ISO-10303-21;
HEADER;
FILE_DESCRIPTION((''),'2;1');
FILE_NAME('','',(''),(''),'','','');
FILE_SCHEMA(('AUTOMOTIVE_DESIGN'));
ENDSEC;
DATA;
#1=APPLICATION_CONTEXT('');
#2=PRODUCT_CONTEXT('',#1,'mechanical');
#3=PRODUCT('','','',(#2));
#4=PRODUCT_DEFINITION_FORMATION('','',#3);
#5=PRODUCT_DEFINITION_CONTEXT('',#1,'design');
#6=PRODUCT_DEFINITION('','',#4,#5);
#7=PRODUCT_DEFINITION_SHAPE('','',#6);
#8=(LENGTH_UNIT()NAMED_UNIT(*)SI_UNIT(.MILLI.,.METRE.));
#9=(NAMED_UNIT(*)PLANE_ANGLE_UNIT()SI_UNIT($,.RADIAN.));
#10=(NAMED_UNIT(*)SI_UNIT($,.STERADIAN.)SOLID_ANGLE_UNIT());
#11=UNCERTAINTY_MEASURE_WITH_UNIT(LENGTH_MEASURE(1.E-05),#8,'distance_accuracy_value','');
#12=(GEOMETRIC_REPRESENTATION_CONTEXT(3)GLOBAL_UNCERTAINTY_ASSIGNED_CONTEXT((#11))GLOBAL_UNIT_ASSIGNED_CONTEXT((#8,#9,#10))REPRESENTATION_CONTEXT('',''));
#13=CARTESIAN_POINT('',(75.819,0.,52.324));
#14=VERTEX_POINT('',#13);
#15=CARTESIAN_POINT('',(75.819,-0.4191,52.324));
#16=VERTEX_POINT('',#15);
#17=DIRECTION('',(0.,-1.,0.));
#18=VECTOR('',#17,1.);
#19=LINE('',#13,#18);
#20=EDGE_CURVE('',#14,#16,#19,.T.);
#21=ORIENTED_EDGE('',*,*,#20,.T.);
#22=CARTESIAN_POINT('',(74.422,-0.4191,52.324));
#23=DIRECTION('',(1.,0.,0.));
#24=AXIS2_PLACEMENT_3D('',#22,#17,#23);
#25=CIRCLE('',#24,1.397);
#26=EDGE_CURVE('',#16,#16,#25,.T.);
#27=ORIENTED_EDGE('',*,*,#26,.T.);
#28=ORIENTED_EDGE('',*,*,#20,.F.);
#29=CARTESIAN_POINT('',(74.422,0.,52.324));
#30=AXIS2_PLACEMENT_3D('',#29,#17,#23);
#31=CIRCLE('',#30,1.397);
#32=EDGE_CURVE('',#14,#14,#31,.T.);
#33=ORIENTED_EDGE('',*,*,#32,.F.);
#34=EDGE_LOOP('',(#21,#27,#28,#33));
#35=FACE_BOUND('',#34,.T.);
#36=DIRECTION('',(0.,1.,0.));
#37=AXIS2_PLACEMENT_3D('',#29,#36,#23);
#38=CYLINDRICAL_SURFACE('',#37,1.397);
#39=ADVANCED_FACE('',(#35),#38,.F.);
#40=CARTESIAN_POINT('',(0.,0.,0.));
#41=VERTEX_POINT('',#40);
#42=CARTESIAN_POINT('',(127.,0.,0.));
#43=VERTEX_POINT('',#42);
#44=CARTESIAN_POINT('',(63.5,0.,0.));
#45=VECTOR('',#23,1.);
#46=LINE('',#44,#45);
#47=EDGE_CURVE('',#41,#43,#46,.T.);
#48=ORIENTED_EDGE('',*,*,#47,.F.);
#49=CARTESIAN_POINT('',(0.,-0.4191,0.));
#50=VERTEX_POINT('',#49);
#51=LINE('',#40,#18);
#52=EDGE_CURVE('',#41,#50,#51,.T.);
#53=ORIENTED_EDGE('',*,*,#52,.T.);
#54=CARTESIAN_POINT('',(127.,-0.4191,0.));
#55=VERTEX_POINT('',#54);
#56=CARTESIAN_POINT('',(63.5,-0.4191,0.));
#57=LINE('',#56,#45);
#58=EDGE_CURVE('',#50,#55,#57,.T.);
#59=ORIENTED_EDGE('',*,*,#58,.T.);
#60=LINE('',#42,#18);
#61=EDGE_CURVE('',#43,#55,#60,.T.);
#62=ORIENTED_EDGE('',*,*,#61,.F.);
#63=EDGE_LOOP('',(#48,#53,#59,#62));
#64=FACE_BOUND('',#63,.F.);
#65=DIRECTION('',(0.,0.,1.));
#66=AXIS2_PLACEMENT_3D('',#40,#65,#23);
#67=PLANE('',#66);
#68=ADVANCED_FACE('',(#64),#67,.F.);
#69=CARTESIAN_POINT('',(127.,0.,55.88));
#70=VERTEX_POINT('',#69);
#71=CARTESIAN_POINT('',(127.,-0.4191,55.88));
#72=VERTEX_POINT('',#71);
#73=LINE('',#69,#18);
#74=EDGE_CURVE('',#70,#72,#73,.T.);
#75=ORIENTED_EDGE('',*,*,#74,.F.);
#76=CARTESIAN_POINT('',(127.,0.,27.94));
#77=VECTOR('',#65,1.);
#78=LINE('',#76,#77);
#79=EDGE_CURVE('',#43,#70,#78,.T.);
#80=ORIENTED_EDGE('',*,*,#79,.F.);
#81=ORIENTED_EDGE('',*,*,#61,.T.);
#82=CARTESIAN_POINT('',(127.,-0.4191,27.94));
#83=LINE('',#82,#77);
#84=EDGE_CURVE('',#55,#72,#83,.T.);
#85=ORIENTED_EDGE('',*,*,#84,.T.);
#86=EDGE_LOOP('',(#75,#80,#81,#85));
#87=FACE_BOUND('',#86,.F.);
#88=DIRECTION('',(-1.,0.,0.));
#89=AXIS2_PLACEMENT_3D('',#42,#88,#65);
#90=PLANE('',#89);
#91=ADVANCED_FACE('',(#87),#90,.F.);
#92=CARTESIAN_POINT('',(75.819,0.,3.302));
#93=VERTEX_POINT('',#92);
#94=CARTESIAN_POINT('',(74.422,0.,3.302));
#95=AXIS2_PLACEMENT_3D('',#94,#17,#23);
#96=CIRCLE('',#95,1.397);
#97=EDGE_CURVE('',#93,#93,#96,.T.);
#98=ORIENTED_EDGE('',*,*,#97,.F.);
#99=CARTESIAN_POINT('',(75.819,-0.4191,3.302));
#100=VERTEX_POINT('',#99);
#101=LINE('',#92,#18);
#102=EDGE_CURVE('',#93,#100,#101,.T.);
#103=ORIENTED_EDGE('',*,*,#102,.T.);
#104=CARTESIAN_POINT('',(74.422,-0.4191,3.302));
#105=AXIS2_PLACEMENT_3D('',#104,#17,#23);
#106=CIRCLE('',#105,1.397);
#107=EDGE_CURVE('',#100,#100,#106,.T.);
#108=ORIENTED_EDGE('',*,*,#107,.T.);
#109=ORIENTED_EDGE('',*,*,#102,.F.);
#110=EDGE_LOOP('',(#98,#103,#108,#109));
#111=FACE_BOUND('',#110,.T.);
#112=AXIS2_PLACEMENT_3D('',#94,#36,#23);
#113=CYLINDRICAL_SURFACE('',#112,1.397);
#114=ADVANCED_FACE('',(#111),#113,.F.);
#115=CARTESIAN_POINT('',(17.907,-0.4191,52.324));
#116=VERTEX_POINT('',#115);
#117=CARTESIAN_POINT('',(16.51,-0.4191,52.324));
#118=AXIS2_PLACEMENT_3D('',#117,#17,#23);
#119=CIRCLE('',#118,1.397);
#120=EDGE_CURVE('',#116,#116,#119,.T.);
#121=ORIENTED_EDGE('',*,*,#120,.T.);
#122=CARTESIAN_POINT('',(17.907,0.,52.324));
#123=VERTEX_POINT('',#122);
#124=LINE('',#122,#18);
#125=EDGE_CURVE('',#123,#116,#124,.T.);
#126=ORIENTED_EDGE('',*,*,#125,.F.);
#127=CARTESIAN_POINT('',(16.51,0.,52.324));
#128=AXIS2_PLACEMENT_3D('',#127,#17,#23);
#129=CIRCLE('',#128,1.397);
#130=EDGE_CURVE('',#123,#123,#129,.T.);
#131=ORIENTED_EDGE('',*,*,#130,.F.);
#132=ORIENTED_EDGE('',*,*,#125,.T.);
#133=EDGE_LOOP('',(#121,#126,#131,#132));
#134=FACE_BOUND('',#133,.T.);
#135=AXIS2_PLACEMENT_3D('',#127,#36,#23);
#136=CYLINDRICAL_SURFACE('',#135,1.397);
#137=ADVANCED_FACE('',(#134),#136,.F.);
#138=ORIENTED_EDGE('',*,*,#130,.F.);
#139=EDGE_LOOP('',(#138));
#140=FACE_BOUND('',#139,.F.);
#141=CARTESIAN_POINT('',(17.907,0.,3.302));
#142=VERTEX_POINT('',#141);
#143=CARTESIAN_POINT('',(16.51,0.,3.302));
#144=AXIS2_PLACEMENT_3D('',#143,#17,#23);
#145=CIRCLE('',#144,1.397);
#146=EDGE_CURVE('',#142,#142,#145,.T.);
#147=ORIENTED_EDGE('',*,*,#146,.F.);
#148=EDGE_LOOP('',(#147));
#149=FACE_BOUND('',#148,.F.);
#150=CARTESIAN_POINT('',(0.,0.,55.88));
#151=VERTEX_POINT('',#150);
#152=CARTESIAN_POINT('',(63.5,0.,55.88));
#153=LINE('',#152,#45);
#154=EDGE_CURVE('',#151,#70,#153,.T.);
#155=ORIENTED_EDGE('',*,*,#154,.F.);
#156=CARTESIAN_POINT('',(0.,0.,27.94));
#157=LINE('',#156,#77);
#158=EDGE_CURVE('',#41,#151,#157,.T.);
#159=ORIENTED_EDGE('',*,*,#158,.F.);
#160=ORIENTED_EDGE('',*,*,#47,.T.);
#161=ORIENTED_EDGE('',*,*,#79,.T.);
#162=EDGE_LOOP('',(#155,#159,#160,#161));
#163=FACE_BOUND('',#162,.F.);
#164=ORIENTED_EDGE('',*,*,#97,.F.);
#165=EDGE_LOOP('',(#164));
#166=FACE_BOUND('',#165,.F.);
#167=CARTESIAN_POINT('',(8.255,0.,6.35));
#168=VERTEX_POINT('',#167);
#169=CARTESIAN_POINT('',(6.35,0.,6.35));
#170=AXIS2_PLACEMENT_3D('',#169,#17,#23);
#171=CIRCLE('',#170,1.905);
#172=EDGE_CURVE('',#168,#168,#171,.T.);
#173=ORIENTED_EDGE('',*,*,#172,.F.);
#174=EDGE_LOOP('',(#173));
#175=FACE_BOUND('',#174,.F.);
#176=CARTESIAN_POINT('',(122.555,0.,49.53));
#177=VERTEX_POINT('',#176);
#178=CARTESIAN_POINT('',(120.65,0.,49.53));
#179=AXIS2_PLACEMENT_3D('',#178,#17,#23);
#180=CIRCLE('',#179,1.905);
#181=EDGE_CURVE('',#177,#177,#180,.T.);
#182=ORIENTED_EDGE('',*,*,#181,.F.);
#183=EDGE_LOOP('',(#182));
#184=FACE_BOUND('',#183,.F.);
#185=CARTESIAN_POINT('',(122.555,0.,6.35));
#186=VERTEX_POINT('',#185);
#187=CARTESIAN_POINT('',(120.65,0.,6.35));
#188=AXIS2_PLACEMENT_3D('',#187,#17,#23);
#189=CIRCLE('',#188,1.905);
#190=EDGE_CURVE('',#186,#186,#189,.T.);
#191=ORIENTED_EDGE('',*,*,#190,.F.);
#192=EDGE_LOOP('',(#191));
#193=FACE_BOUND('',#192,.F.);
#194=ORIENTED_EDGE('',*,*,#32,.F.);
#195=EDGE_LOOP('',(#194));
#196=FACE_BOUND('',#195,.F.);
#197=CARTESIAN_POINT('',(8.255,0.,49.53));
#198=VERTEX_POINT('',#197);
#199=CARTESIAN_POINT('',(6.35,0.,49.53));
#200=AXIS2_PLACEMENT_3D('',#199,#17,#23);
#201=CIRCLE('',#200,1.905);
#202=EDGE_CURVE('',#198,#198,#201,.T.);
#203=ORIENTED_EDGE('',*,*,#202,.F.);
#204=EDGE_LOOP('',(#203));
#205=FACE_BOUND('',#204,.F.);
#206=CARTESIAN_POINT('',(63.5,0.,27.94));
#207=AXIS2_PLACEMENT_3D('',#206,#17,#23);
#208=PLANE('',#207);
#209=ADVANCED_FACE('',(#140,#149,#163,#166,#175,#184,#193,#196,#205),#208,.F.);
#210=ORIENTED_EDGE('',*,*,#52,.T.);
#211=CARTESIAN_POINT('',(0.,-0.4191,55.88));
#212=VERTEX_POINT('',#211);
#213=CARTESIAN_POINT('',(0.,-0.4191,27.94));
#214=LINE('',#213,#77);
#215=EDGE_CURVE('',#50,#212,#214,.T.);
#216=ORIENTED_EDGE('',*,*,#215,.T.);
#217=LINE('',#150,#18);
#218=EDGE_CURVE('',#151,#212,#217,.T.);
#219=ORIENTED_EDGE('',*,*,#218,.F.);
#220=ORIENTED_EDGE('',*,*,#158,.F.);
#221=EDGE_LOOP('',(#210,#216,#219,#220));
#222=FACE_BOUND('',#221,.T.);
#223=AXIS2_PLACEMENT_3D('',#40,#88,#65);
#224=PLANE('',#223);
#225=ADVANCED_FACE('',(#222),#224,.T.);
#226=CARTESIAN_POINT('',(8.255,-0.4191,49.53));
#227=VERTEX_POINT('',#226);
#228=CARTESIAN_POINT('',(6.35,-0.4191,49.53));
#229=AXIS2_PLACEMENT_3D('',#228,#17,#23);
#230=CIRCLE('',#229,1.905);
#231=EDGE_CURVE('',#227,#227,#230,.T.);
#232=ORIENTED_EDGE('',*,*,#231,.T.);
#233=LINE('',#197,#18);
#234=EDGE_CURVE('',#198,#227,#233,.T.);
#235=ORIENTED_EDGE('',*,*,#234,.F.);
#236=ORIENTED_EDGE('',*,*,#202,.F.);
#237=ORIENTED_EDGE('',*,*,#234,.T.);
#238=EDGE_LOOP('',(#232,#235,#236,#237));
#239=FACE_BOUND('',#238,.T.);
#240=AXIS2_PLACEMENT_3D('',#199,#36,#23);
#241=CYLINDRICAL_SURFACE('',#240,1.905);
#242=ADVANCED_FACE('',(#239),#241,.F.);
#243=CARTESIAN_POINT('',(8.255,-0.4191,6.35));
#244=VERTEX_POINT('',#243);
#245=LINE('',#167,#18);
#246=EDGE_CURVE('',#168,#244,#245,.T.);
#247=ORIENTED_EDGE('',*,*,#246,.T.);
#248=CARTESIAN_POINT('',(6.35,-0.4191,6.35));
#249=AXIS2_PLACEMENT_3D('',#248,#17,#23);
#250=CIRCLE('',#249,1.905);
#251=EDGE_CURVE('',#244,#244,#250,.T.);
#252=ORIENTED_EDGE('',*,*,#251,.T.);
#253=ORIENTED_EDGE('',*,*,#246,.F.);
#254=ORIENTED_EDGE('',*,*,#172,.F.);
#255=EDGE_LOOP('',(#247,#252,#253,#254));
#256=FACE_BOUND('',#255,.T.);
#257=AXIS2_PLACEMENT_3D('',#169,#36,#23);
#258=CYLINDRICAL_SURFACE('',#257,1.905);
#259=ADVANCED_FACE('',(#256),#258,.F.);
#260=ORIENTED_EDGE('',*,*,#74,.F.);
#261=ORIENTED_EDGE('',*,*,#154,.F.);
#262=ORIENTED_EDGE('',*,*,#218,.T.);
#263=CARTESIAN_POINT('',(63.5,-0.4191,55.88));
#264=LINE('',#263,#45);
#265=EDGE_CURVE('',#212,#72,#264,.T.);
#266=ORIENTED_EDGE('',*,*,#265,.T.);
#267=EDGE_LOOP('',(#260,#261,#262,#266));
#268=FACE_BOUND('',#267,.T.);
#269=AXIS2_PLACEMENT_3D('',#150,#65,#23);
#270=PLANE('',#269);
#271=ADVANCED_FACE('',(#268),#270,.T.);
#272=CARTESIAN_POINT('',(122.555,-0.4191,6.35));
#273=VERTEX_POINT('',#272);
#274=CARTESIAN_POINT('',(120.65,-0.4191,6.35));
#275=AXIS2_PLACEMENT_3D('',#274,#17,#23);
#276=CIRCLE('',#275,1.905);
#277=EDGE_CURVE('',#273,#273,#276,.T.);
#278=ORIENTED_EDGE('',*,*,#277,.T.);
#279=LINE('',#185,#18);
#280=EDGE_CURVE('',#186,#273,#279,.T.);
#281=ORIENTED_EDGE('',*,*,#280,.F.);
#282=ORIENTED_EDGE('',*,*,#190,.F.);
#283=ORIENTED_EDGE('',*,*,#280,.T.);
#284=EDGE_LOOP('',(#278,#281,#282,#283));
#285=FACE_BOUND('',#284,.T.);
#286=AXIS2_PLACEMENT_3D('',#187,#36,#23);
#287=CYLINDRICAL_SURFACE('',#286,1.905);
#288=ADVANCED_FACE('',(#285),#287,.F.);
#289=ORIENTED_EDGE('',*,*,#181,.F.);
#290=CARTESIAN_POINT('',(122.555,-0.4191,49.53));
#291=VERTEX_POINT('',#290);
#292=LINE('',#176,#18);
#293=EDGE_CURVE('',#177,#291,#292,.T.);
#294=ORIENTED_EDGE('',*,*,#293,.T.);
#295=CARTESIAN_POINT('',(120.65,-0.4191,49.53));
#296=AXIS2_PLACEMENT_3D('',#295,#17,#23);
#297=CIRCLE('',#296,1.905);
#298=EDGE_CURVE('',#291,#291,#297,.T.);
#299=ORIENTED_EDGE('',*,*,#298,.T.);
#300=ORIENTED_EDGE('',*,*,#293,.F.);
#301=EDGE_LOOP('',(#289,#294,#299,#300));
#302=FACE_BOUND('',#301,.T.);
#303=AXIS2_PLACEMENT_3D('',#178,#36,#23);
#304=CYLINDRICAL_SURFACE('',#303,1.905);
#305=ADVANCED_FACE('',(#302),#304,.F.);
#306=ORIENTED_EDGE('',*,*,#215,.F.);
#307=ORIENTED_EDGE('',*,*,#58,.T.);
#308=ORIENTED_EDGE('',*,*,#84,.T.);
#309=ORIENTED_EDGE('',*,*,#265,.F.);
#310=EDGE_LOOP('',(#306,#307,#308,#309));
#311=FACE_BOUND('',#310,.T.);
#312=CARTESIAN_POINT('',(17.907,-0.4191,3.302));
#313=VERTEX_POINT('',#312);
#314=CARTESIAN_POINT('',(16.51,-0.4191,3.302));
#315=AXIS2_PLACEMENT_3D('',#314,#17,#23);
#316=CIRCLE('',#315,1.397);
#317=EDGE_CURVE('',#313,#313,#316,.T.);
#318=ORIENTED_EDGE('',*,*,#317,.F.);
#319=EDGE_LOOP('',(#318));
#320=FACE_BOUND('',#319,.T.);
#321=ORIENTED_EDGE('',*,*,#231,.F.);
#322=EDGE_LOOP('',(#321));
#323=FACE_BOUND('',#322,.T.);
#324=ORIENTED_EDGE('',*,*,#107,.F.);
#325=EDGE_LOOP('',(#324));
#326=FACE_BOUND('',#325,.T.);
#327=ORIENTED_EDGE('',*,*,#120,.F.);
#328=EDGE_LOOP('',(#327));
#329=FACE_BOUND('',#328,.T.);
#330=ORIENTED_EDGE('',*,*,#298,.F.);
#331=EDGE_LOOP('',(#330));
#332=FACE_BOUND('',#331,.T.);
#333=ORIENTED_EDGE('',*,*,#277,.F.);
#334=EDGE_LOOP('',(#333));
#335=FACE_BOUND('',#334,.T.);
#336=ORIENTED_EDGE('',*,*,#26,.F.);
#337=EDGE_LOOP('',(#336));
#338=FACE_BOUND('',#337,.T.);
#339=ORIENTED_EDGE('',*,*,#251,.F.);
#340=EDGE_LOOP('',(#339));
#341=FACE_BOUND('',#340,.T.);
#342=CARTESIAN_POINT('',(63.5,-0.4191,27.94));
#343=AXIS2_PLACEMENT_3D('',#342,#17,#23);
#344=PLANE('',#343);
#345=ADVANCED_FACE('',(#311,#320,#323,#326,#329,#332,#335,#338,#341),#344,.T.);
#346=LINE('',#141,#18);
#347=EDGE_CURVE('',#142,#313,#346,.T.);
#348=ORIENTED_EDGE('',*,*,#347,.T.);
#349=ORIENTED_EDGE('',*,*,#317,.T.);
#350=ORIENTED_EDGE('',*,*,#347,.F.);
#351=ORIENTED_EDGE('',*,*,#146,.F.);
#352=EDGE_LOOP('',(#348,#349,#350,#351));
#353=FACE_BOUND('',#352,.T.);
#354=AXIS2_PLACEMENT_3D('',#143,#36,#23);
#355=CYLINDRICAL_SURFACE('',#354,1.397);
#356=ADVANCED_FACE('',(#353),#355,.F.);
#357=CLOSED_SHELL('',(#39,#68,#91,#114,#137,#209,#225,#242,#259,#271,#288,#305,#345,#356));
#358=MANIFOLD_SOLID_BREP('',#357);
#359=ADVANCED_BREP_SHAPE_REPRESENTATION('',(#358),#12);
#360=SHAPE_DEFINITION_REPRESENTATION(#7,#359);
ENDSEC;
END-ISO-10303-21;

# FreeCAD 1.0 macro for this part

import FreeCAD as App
import Part
import Sketcher
from FreeCAD import Vector
Q = App.Units.Quantity

doc = App.newDocument("Part")
params = doc.addObject("Spreadsheet::Sheet", "Params")
for row, (alias, value) in enumerate([
    ("sketch1_diameter", "0.11 in"),
    ("sketch1_diameter2", "0.15 in"),
    ("sketch1_width", "5 in"),
    ("sketch1_height", "2.2 in"),
    ("pad1_length", "0.0165 in"),
], start=1):
    params.set(f"A{row}", alias)
    params.set(f"B{row}", "=" + value)
    params.setAlias(f"B{row}", alias)

body = doc.addObject("PartDesign::Body", "Body")

sketch1 = body.newObject("Sketcher::SketchObject", "Sketch")
sketch1.AttachmentSupport = (doc.getObject("XZ_Plane"), [""])
sketch1.MapMode = "FlatFace"
sketch1.addGeometry([
    Part.LineSegment(Vector(0, 55.9, 0), Vector(0, 0, 0)),
    Part.LineSegment(Vector(0, 0, 0), Vector(127, 0, 0)),
    Part.LineSegment(Vector(127, 0, 0), Vector(127, 55.9, 0)),
    Part.LineSegment(Vector(127, 55.9, 0), Vector(0, 55.9, 0)),
    Part.Circle(Vector(16.5, 3.3, 0), Vector(0, 0, 1), 1.4),
    Part.Circle(Vector(6.3, 6.3, 0), Vector(0, 0, 1), 1.9),
    Part.Circle(Vector(74.4, 3.3, 0), Vector(0, 0, 1), 1.4),
    Part.Circle(Vector(120.7, 6.3, 0), Vector(0, 0, 1), 1.9),
    Part.Circle(Vector(6.3, 49.5, 0), Vector(0, 0, 1), 1.9),
    Part.Circle(Vector(16.5, 52.3, 0), Vector(0, 0, 1), 1.4),
    Part.Circle(Vector(74.4, 52.3, 0), Vector(0, 0, 1), 1.4),
    Part.Circle(Vector(120.7, 49.5, 0), Vector(0, 0, 1), 1.9),
], False)
sketch1.addConstraint([
    Sketcher.Constraint("Coincident", 0, 2, 1, 1),
    Sketcher.Constraint("Coincident", 1, 2, 2, 1),
    Sketcher.Constraint("Coincident", 2, 2, 3, 1),
    Sketcher.Constraint("Coincident", 3, 2, 0, 1),
    Sketcher.Constraint("Vertical", 0),
    Sketcher.Constraint("Horizontal", 1),
    Sketcher.Constraint("Vertical", 2),
    Sketcher.Constraint("Horizontal", 3),
    Sketcher.Constraint("Coincident", 0, 2, -1, 1),
    Sketcher.Constraint("Equal", 4, 6),
    Sketcher.Constraint("Equal", 5, 7),
    Sketcher.Constraint("Equal", 7, 8),
    Sketcher.Constraint("Equal", 6, 9),
    Sketcher.Constraint("Equal", 9, 10),
    Sketcher.Constraint("Equal", 8, 11),
    Sketcher.Constraint("Horizontal", 4, 3, 6, 3),
    Sketcher.Constraint("Horizontal", 5, 3, 7, 3),
    Sketcher.Constraint("Horizontal", 9, 3, 10, 3),
    Sketcher.Constraint("Horizontal", 8, 3, 11, 3),
    Sketcher.Constraint("Vertical", 5, 3, 8, 3),
    Sketcher.Constraint("Vertical", 4, 3, 9, 3),
    Sketcher.Constraint("Vertical", 6, 3, 10, 3),
    Sketcher.Constraint("Vertical", 7, 3, 11, 3),
    Sketcher.Constraint("Diameter", 4, Q("0.11 in")),
    Sketcher.Constraint("Diameter", 5, Q("0.15 in")),
    Sketcher.Constraint("DistanceX", 1, 1, 1, 2, Q("5 in")),
    Sketcher.Constraint("DistanceY", 0, 2, 0, 1, Q("2.2 in")),
    Sketcher.Constraint("DistanceX", 5, 3, 4, 3, Q("0.4 in")),
    Sketcher.Constraint("DistanceX", 4, 3, 7, 3, Q("4.1 in")),
    Sketcher.Constraint("DistanceY", 5, 3, 8, 3, Q("1.7 in")),
    Sketcher.Constraint("DistanceX", -1, 1, 4, 3, Q("0.65 in")),
    Sketcher.Constraint("DistanceY", -1, 1, 4, 3, Q("0.13 in")),
    Sketcher.Constraint("DistanceY", -1, 1, 5, 3, Q("0.25 in")),
    Sketcher.Constraint("DistanceX", -1, 1, 6, 3, Q("2.93 in")),
    Sketcher.Constraint("DistanceY", -1, 1, 9, 3, Q("2.06 in")),
])
sketch1.setExpression("Constraints[23]", "Params.sketch1_diameter")
sketch1.setExpression("Constraints[24]", "Params.sketch1_diameter2")
sketch1.setExpression("Constraints[25]", "Params.sketch1_width")
sketch1.setExpression("Constraints[26]", "Params.sketch1_height")
pad1 = body.newObject("PartDesign::Pad", "Pad")
pad1.Profile = sketch1
pad1.setExpression("Length", "Params.pad1_length")

doc.recompute()
